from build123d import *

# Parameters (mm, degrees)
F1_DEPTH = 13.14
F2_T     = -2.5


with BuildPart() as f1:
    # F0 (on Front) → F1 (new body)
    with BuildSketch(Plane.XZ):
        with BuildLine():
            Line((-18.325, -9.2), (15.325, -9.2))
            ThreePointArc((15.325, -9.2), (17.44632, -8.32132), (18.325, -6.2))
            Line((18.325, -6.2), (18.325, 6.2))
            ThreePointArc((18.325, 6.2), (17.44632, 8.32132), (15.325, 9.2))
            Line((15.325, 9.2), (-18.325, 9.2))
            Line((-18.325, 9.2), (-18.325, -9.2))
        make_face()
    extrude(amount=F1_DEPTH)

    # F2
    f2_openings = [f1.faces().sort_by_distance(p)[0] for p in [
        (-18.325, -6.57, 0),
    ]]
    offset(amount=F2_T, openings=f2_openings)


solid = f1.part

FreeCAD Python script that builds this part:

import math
import FreeCAD as App
import Part
import Sketcher


def faces_at(feature, points):
    """Names of the faces that lie closest to the given points."""
    faces = feature.Shape.Faces
    near = lambda p: min(range(len(faces)), key=lambda i: faces[i].distToShape(Part.Vertex(*p))[0])
    return sorted({f"Face{near(p) + 1}" for p in points})

doc = App.newDocument("Part")
params = doc.addObject("Spreadsheet::Sheet", "Params")
for row, (alias, value) in enumerate([
    ("sketch1_radius", "3.000001 mm"),
    ("sketch1_height", "12.4 mm"),
    ("sketch1_width", "33.65 mm"),
    ("pad1_length", "13.14 mm"),
    ("thickness_wall", "2.5 mm"),
], start=1):
    params.set(f"A{row}", alias)
    params.set(f"B{row}", "=" + value)
    params.setAlias(f"B{row}", alias)

body = doc.addObject("PartDesign::Body", "Body")

# Sketch on XZ plane
sketch1 = body.newObject("Sketcher::SketchObject", "Sketch")
sketch1.AttachmentSupport = (doc.getObject("XZ_Plane"), [""])
sketch1.MapMode = "FlatFace"
sketch1.addGeometry([
    Part.LineSegment(App.Vector(-18.325, -9.2, 0), App.Vector(15.325, -9.2, 0)),  # 0
    Part.ArcOfCircle(Part.Circle(App.Vector(15.324999, -6.199999, 0), App.Vector(0, 0, 1), 3.000001), math.radians(-89.999978), math.radians(-0.000022)),  # 1
    Part.LineSegment(App.Vector(18.325, -6.2, 0), App.Vector(18.325, 6.2, 0)),  # 2
    Part.ArcOfCircle(Part.Circle(App.Vector(15.324999, 6.199999, 0), App.Vector(0, 0, 1), 3.000001), math.radians(0.000022), math.radians(89.999978)),  # 3
    Part.LineSegment(App.Vector(15.325, 9.2, 0), App.Vector(-18.325, 9.2, 0)),  # 4
    Part.LineSegment(App.Vector(-18.325, 9.2, 0), App.Vector(-18.325, -9.2, 0)),  # 5
], False)
sketch1.addConstraint([
    Sketcher.Constraint("Tangent", 0, 2, 1, 1),
    Sketcher.Constraint("Tangent", 1, 2, 2, 1),
    Sketcher.Constraint("Tangent", 2, 2, 3, 1),
    Sketcher.Constraint("Tangent", 3, 2, 4, 1),
    Sketcher.Constraint("Coincident", 4, 2, 5, 1),
    Sketcher.Constraint("Coincident", 5, 2, 0, 1),
    Sketcher.Constraint("Horizontal", 0),
    Sketcher.Constraint("Vertical", 2),
    Sketcher.Constraint("Horizontal", 4),
    Sketcher.Constraint("Vertical", 5),
    Sketcher.Constraint("Equal", 1, 3),
    Sketcher.Constraint("Radius", 1, 3.000001),
    Sketcher.Constraint("DistanceY", 2, 1, 2, 2, 12.4),
    Sketcher.Constraint("DistanceX", 0, 1, 0, 2, 33.65),
    Sketcher.Constraint("DistanceY", 1, 3, -1, 1, 6.199999),
    Sketcher.Constraint("DistanceX", -1, 1, 1, 3, 15.324999),
])
sketch1.setExpression("Constraints[11]", "Params.sketch1_radius")
sketch1.setExpression("Constraints[12]", "Params.sketch1_height")
sketch1.setExpression("Constraints[13]", "Params.sketch1_width")
pad1 = body.newObject("PartDesign::Pad", "Pad")
pad1.Profile = sketch1
pad1.setExpression("Length", "Params.pad1_length")
doc.recompute()

thickness = body.newObject("PartDesign::Thickness", "Thickness")
thickness.Base = (pad1, faces_at(pad1, [(-18.325, -6.57, 0)]))
thickness.setExpression("Value", "Params.thickness_wall")
thickness.Reversed = True
thickness.Join = "Arc"

doc.recompute()
